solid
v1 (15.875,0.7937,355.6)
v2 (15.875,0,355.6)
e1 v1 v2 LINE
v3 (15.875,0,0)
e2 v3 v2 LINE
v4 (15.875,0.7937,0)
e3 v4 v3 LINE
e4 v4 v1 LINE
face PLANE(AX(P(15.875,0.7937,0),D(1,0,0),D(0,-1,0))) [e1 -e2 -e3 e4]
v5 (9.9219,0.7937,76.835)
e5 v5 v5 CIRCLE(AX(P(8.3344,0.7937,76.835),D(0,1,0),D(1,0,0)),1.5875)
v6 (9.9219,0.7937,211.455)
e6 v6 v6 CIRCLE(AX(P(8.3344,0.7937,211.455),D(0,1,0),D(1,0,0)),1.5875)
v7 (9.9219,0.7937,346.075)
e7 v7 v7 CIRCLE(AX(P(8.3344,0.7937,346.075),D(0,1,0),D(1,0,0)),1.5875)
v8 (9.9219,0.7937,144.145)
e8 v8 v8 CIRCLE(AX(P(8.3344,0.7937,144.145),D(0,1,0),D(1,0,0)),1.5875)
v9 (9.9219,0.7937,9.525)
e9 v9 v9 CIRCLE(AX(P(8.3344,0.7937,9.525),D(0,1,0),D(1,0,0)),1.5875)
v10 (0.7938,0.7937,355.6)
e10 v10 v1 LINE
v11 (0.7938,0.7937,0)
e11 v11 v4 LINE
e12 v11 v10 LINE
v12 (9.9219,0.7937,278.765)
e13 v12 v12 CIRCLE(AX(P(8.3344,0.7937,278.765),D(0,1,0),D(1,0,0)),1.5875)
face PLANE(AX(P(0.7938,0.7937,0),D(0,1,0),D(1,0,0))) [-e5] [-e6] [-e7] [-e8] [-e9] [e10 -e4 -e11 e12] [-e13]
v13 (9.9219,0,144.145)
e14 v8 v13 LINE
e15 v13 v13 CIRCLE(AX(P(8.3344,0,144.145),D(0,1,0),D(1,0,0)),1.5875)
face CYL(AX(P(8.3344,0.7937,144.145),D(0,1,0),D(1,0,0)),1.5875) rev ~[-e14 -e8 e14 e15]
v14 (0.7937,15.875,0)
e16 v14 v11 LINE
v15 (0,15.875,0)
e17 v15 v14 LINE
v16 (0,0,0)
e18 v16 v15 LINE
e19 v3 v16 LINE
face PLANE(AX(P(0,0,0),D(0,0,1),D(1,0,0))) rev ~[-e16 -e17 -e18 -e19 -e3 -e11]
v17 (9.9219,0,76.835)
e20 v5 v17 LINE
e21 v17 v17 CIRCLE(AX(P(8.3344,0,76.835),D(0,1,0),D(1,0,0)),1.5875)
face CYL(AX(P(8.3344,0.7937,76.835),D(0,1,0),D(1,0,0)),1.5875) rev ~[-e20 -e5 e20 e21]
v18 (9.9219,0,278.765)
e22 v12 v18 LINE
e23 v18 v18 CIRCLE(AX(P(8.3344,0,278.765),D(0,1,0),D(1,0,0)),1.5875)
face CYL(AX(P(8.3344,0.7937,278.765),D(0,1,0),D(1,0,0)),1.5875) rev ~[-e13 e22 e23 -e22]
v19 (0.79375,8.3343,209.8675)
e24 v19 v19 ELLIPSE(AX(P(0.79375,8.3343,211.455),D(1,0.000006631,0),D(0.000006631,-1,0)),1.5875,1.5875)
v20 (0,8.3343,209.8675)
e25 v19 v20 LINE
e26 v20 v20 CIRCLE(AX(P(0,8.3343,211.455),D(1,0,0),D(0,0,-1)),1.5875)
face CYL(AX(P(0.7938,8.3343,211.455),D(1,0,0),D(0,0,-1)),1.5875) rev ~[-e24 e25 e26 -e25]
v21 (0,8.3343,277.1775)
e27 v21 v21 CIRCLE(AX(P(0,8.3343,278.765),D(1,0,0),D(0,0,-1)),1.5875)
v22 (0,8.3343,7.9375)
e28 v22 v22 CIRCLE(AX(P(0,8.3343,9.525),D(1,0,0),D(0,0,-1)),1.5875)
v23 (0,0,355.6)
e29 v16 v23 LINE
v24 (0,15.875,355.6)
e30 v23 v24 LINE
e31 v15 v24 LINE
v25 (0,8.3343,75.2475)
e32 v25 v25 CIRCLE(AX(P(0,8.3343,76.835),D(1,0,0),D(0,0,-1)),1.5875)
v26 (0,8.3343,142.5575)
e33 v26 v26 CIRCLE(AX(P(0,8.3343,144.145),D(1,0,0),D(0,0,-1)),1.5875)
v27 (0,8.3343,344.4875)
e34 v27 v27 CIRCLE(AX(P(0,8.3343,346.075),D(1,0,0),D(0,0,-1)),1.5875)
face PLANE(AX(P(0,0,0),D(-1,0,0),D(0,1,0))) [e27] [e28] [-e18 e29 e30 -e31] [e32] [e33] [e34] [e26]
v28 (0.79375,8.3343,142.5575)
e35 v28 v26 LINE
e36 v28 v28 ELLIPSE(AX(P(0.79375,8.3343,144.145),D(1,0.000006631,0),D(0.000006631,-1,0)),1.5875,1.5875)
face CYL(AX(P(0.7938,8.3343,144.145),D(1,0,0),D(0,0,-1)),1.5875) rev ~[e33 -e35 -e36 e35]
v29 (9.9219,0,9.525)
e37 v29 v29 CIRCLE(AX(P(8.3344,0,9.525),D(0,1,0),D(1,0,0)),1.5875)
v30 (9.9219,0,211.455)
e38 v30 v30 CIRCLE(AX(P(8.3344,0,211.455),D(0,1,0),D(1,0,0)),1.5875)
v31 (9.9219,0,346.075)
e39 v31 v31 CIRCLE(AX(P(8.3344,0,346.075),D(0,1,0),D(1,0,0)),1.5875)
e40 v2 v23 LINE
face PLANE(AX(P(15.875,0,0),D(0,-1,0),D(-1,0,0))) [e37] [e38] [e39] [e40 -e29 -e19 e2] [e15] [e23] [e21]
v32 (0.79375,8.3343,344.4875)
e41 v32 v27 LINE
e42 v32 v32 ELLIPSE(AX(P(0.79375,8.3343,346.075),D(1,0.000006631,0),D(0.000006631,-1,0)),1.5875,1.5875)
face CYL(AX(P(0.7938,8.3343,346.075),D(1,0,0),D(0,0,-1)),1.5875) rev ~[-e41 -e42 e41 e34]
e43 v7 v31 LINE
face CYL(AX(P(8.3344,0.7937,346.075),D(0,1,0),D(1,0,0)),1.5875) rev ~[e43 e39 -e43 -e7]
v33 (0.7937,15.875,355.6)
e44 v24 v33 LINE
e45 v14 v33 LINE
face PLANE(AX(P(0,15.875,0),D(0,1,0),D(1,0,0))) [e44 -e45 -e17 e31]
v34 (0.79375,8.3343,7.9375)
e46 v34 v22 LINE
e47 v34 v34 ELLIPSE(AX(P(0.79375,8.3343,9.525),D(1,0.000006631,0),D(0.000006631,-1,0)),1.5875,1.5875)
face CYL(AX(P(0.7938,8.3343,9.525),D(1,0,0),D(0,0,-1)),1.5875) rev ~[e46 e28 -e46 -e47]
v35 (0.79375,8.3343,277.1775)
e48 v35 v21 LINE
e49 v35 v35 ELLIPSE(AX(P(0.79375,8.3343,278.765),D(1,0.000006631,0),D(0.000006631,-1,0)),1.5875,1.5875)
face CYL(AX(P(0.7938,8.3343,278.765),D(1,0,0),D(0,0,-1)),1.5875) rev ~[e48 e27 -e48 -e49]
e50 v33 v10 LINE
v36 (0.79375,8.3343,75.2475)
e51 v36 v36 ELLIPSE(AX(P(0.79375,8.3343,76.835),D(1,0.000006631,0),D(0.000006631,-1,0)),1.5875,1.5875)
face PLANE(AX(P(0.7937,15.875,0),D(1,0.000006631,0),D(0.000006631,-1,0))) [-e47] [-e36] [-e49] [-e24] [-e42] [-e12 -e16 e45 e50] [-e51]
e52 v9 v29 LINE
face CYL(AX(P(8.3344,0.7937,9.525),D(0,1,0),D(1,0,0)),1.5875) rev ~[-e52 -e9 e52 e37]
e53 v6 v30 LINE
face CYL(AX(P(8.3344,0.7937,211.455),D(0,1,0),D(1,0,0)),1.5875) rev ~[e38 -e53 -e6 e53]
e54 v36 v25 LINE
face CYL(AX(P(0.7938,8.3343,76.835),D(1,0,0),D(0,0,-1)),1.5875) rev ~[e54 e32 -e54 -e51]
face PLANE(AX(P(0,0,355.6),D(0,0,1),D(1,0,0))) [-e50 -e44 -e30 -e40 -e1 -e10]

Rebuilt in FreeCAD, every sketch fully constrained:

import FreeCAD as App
import Part
import Sketcher
Q = App.Units.Quantity


def add_polygon(sketch, points):
    """Adds a closed chain of lines whose ends are joined by coincident constraints."""
    first, n = sketch.GeometryCount, len(points)
    for a, b in zip(points, points[1:] + points[:1]):
        sketch.addGeometry(Part.LineSegment(App.Vector(*a, 0), App.Vector(*b, 0)), False)
    for i in range(n):
        sketch.addConstraint(Sketcher.Constraint("Coincident", first + i, 2, first + (i + 1) % n, 1))

doc = App.newDocument("Part")
body = doc.addObject("PartDesign::Body", "Body")

sketch1 = body.newObject("Sketcher::SketchObject", "Sketch")
sketch1.AttachmentSupport = (doc.getObject("XY_Plane"), [""])
sketch1.MapMode = "FlatFace"
add_polygon(sketch1, [(0, 15.9), (0, 0), (15.9, 0), (15.9, 0.8), (0.8, 0.8), (0.8, 15.9)])
sketch1.addConstraint([
    Sketcher.Constraint("Vertical", 0),
    Sketcher.Constraint("Horizontal", 1),
    Sketcher.Constraint("Vertical", 2),
    Sketcher.Constraint("Horizontal", 3),
    Sketcher.Constraint("Vertical", 4),
    Sketcher.Constraint("Horizontal", 5),
    Sketcher.Constraint("Coincident", 0, 2, -1, 1),
    Sketcher.Constraint("Equal", 1, 0),
    Sketcher.Constraint("Equal", 5, 2),
    Sketcher.Constraint("DistanceX", 1, 1, 1, 2, Q("0.625 in")),
    Sketcher.Constraint("DistanceX", 5, 2, 5, 1, Q("0.031248 in")),
])
pad1 = body.newObject("PartDesign::Pad", "Pad")
pad1.Profile = sketch1
pad1.Length = Q("14 in")

sketch2 = body.newObject("Sketcher::SketchObject", "Sketch001")
sketch2.AttachmentSupport = (doc.getObject("XZ_Plane"), [""])
sketch2.MapMode = "FlatFace"
sketch2.AttachmentOffset = App.Placement(App.Vector(0, 0, -0.031248 * 25.4), App.Rotation())
sketch2.addGeometry([
    Part.Circle(App.Vector(8.3, 9.5, 0), App.Vector(0, 0, 1), 1.6),
    Part.Circle(App.Vector(8.3, 76.8, 0), App.Vector(0, 0, 1), 1.6),
    Part.Circle(App.Vector(8.3, 144.1, 0), App.Vector(0, 0, 1), 1.6),
    Part.Circle(App.Vector(8.3, 211.5, 0), App.Vector(0, 0, 1), 1.6),
    Part.Circle(App.Vector(8.3, 278.8, 0), App.Vector(0, 0, 1), 1.6),
    Part.Circle(App.Vector(8.3, 346.1, 0), App.Vector(0, 0, 1), 1.6),
], False)
sketch2.addConstraint([
    Sketcher.Constraint("Equal", 0, 1),
    Sketcher.Constraint("Equal", 1, 2),
    Sketcher.Constraint("Equal", 2, 3),
    Sketcher.Constraint("Equal", 3, 4),
    Sketcher.Constraint("Equal", 4, 5),
    Sketcher.Constraint("Vertical", 0, 3, 1, 3),
    Sketcher.Constraint("Vertical", 1, 3, 2, 3),
    Sketcher.Constraint("Vertical", 2, 3, 3, 3),
    Sketcher.Constraint("Vertical", 3, 3, 4, 3),
    Sketcher.Constraint("Vertical", 4, 3, 5, 3),
    Sketcher.Constraint("Diameter", 0, Q("0.125 in")),
    Sketcher.Constraint("DistanceY", 0, 3, 1, 3, Q("2.65 in")),
    Sketcher.Constraint("DistanceY", 1, 3, 2, 3, Q("2.65 in")),
    Sketcher.Constraint("DistanceY", 2, 3, 3, 3, Q("2.65 in")),
    Sketcher.Constraint("DistanceY", 3, 3, 4, 3, Q("2.65 in")),
    Sketcher.Constraint("DistanceY", 4, 3, 5, 3, Q("2.65 in")),
    Sketcher.Constraint("DistanceY", -1, 1, 0, 3, Q("0.375 in")),
    Sketcher.Constraint("DistanceX", -1, 1, 0, 3, Q("0.328126 in")),
])
pocket1 = body.newObject("PartDesign::Pocket", "Pocket")
pocket1.Profile = sketch2
pocket1.Type = "ThroughAll"
pocket1.Reversed = True

sketch3 = body.newObject("Sketcher::SketchObject", "Sketch002")
sketch3.AttachmentSupport = (doc.getObject("YZ_Plane"), [""])
sketch3.MapMode = "FlatFace"
sketch3.AttachmentOffset = App.Placement(App.Vector(0, 0, 0.031252 * 25.4), App.Rotation())
sketch3.addGeometry([
    Part.Circle(App.Vector(8.3, 9.5, 0), App.Vector(0, 0, 1), 1.6),
    Part.Circle(App.Vector(8.3, 76.8, 0), App.Vector(0, 0, 1), 1.6),
    Part.Circle(App.Vector(8.3, 144.1, 0), App.Vector(0, 0, 1), 1.6),
    Part.Circle(App.Vector(8.3, 211.5, 0), App.Vector(0, 0, 1), 1.6),
    Part.Circle(App.Vector(8.3, 278.8, 0), App.Vector(0, 0, 1), 1.6),
    Part.Circle(App.Vector(8.3, 346.1, 0), App.Vector(0, 0, 1), 1.6),
], False)
sketch3.addConstraint([
    Sketcher.Constraint("Equal", 0, 1),
    Sketcher.Constraint("Equal", 1, 2),
    Sketcher.Constraint("Equal", 2, 3),
    Sketcher.Constraint("Equal", 3, 4),
    Sketcher.Constraint("Equal", 4, 5),
    Sketcher.Constraint("Vertical", 0, 3, 1, 3),
    Sketcher.Constraint("Vertical", 1, 3, 2, 3),
    Sketcher.Constraint("Vertical", 2, 3, 3, 3),
    Sketcher.Constraint("Vertical", 3, 3, 4, 3),
    Sketcher.Constraint("Vertical", 4, 3, 5, 3),
    Sketcher.Constraint("Diameter", 0, Q("0.125 in")),
    Sketcher.Constraint("DistanceY", 0, 3, 1, 3, Q("2.65 in")),
    Sketcher.Constraint("DistanceY", 1, 3, 2, 3, Q("2.65 in")),
    Sketcher.Constraint("DistanceY", 2, 3, 3, 3, Q("2.65 in")),
    Sketcher.Constraint("DistanceY", 3, 3, 4, 3, Q("2.65 in")),
    Sketcher.Constraint("DistanceY", 4, 3, 5, 3, Q("2.65 in")),
    Sketcher.Constraint("DistanceY", -1, 1, 0, 3, Q("0.375 in")),
    Sketcher.Constraint("DistanceX", -1, 1, 0, 3, Q("0.328122 in")),
])
pocket2 = body.newObject("PartDesign::Pocket", "Pocket001")
pocket2.Profile = sketch3
pocket2.Type = "ThroughAll"

doc.recompute()
